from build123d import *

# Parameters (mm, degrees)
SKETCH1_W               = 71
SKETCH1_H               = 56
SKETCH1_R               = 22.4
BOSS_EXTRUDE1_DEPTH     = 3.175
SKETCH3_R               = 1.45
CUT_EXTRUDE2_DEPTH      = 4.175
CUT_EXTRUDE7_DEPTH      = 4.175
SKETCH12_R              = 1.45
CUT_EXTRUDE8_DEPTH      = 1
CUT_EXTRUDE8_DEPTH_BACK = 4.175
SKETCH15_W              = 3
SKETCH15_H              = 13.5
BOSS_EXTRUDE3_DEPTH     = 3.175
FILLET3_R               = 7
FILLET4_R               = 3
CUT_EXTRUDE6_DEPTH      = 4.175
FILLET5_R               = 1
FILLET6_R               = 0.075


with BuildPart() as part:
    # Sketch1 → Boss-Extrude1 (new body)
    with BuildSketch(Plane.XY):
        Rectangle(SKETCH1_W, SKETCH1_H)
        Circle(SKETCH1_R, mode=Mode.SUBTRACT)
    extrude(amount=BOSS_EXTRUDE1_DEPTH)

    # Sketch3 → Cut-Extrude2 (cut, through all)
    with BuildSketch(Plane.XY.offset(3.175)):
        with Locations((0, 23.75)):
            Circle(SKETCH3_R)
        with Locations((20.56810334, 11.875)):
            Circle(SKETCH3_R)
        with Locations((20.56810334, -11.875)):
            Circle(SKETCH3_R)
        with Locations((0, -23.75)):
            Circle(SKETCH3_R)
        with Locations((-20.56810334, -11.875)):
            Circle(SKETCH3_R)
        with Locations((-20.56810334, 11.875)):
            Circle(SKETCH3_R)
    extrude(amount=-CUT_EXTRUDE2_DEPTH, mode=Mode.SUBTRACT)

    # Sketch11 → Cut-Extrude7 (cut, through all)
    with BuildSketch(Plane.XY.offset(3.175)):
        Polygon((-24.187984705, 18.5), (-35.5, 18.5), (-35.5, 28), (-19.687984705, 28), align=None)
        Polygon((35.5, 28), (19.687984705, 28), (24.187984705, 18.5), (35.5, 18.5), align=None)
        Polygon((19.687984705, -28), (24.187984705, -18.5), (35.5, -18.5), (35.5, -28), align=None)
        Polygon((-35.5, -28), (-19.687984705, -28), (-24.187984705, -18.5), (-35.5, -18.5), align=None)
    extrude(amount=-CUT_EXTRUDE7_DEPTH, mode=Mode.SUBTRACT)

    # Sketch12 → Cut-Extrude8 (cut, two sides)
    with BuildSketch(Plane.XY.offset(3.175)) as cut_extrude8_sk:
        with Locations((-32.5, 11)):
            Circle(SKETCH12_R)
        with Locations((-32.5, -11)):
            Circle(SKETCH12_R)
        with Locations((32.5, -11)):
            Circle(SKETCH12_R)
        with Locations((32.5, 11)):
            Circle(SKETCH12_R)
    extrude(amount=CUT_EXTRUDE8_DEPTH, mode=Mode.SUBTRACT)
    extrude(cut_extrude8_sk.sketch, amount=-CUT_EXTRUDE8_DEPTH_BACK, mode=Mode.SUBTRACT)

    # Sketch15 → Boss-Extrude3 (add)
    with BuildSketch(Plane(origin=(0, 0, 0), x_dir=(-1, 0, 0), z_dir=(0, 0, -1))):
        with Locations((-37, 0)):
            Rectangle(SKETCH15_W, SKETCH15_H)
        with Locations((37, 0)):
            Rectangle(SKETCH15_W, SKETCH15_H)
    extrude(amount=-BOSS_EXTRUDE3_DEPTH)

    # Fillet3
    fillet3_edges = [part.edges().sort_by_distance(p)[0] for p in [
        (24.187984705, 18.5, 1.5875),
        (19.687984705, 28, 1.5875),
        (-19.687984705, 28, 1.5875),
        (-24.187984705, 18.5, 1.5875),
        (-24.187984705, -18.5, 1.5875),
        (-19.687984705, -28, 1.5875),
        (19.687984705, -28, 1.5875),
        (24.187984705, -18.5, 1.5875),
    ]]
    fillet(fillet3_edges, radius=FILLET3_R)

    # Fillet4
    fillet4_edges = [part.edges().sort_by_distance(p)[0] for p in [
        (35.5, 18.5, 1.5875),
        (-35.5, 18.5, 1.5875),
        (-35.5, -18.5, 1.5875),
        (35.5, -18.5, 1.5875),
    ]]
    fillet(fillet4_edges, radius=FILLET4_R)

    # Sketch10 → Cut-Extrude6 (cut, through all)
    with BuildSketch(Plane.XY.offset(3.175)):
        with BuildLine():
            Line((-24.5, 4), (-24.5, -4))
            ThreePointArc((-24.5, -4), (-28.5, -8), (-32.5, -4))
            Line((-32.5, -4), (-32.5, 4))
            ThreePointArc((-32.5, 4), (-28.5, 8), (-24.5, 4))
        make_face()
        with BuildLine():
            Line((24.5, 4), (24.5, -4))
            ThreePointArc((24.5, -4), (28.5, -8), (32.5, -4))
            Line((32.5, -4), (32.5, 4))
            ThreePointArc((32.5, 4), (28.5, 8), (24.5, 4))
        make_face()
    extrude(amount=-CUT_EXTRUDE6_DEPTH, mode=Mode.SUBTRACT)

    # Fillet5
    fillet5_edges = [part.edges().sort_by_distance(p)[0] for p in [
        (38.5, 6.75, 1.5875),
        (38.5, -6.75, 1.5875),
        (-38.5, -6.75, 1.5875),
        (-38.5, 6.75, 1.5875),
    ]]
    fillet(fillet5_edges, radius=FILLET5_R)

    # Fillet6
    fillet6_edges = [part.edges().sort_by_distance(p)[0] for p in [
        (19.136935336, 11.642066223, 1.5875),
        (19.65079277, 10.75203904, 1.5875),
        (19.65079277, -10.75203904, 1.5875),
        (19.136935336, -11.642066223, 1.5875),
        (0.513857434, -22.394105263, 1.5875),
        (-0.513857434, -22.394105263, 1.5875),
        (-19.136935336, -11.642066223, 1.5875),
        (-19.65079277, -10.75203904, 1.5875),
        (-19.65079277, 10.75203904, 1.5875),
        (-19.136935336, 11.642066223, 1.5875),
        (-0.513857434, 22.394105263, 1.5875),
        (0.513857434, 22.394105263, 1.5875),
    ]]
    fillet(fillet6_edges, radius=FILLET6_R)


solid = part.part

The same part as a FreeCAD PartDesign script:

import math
import FreeCAD as App
import Part
import Sketcher


def edges_at(feature, points):
    """Names of the edges that pass closest to the given points."""
    edges = feature.Shape.Edges
    near = lambda p: min(range(len(edges)), key=lambda i: edges[i].distToShape(Part.Vertex(*p))[0])
    return sorted({f"Edge{near(p) + 1}" for p in points})


def add_polygon(sketch, points):
    """Adds a closed chain of lines whose ends are joined by coincident constraints."""
    first, n = sketch.GeometryCount, len(points)
    for a, b in zip(points, points[1:] + points[:1]):
        sketch.addGeometry(Part.LineSegment(App.Vector(*a, 0), App.Vector(*b, 0)), False)
    for i in range(n):
        sketch.addConstraint(Sketcher.Constraint("Coincident", first + i, 2, first + (i + 1) % n, 1))

doc = App.newDocument("Part")
body = doc.addObject("PartDesign::Body", "Body")

# Sketch on XY plane
sketch1 = doc.addObject("Sketcher::SketchObject", "Sketch")
body.addObject(sketch1)
sketch1.AttachmentSupport = (doc.XY_Plane, [""])
sketch1.MapMode = "FlatFace"
add_polygon(sketch1, [(-36, 28), (-36, -28), (36, -28), (36, 28)])  # lines 0-3
sketch1.addGeometry(Part.Circle(App.Vector(0, 0, 0), App.Vector(0, 0, 1), 22), False)  # 4
sketch1.addConstraint(Sketcher.Constraint("Vertical", 0))
sketch1.addConstraint(Sketcher.Constraint("Horizontal", 1))
sketch1.addConstraint(Sketcher.Constraint("Vertical", 2))
sketch1.addConstraint(Sketcher.Constraint("Horizontal", 3))
sketch1.addConstraint(Sketcher.Constraint("Coincident", 4, 3, -1, 1))
sketch1.addConstraint(Sketcher.Constraint("Symmetric", 0, 2, 2, 2, -1, 1))
sketch1.addConstraint(Sketcher.Constraint("Diameter", 4, 44.8))
sketch1.addConstraint(Sketcher.Constraint("DistanceX", 1, 1, 1, 2, 71.0))
sketch1.addConstraint(Sketcher.Constraint("DistanceY", 0, 2, 0, 1, 56.0))
pad1 = doc.addObject("PartDesign::Pad", "Pad")
body.addObject(pad1)
pad1.Profile = sketch1
pad1.Length = 3.175

# Sketch on XY plane
sketch2 = doc.addObject("Sketcher::SketchObject", "Sketch001")
body.addObject(sketch2)
sketch2.AttachmentSupport = (doc.XY_Plane, [""])
sketch2.MapMode = "FlatFace"
sketch2.AttachmentOffset = App.Placement(App.Vector(0, 0, 3.175), App.Rotation())
sketch2.addGeometry(Part.Circle(App.Vector(0, 23.8, 0), App.Vector(0, 0, 1), 1.4), False)
sketch2.addGeometry(Part.Circle(App.Vector(20.6, 11.9, 0), App.Vector(0, 0, 1), 1.4), False)
sketch2.addGeometry(Part.Circle(App.Vector(20.6, -11.9, 0), App.Vector(0, 0, 1), 1.4), False)
sketch2.addGeometry(Part.Circle(App.Vector(0, -23.8, 0), App.Vector(0, 0, 1), 1.4), False)
sketch2.addGeometry(Part.Circle(App.Vector(-20.6, -11.9, 0), App.Vector(0, 0, 1), 1.4), False)
sketch2.addGeometry(Part.Circle(App.Vector(-20.6, 11.9, 0), App.Vector(0, 0, 1), 1.4), False)
sketch2.addConstraint(Sketcher.Constraint("Equal", 0, 1))
sketch2.addConstraint(Sketcher.Constraint("Equal", 1, 2))
sketch2.addConstraint(Sketcher.Constraint("Equal", 2, 3))
sketch2.addConstraint(Sketcher.Constraint("Equal", 3, 4))
sketch2.addConstraint(Sketcher.Constraint("Equal", 4, 5))
sketch2.addConstraint(Sketcher.Constraint("Symmetric", 0, 3, 3, 3, -1, 1))
sketch2.addConstraint(Sketcher.Constraint("Symmetric", 1, 3, 4, 3, -1, 1))
sketch2.addConstraint(Sketcher.Constraint("Symmetric", 2, 3, 5, 3, -1, 1))
sketch2.addConstraint(Sketcher.Constraint("Symmetric", 2, 3, 4, 3, -2))
sketch2.addConstraint(Sketcher.Constraint("PointOnObject", 0, 3, -2))
sketch2.addConstraint(Sketcher.Constraint("Diameter", 0, 2.9))
sketch2.addConstraint(Sketcher.Constraint("DistanceY", 3, 3, 0, 3, 47.5))
sketch2.addConstraint(Sketcher.Constraint("DistanceY", 2, 3, 1, 3, 23.75))
sketch2.addConstraint(Sketcher.Constraint("DistanceX", -1, 1, 1, 3, 20.568103))
pocket1 = doc.addObject("PartDesign::Pocket", "Pocket")
body.addObject(pocket1)
pocket1.Profile = sketch2
pocket1.Type = "ThroughAll"

# Sketch on XY plane
sketch3 = doc.addObject("Sketcher::SketchObject", "Sketch002")
body.addObject(sketch3)
sketch3.AttachmentSupport = (doc.XY_Plane, [""])
sketch3.MapMode = "FlatFace"
sketch3.AttachmentOffset = App.Placement(App.Vector(0, 0, 3.175), App.Rotation())
add_polygon(sketch3, [(-36, 18), (-24, 18), (-20, 28), (-36, 28)])  # lines 0-3
add_polygon(sketch3, [(36, 28), (20, 28), (24, 18), (36, 18)])  # lines 4-7
add_polygon(sketch3, [(24, -18), (20, -28), (36, -28), (36, -18)])  # lines 8-11
add_polygon(sketch3, [(-36, -28), (-20, -28), (-24, -18), (-36, -18)])  # lines 12-15
sketch3.addConstraint(Sketcher.Constraint("Horizontal", 0))
sketch3.addConstraint(Sketcher.Constraint("Horizontal", 2))
sketch3.addConstraint(Sketcher.Constraint("Vertical", 3))
sketch3.addConstraint(Sketcher.Constraint("Horizontal", 4))
sketch3.addConstraint(Sketcher.Constraint("Horizontal", 6))
sketch3.addConstraint(Sketcher.Constraint("Vertical", 7))
sketch3.addConstraint(Sketcher.Constraint("Horizontal", 9))
sketch3.addConstraint(Sketcher.Constraint("Vertical", 10))
sketch3.addConstraint(Sketcher.Constraint("Horizontal", 11))
sketch3.addConstraint(Sketcher.Constraint("Horizontal", 12))
sketch3.addConstraint(Sketcher.Constraint("Horizontal", 14))
sketch3.addConstraint(Sketcher.Constraint("Vertical", 15))
sketch3.addConstraint(Sketcher.Constraint("Symmetric", 1, 2, 8, 2, -1, 1))
sketch3.addConstraint(Sketcher.Constraint("Symmetric", 3, 2, 10, 2, -1, 1))
sketch3.addConstraint(Sketcher.Constraint("Symmetric", 4, 2, 12, 2, -1, 1))
sketch3.addConstraint(Sketcher.Constraint("Symmetric", 5, 2, 13, 2, -1, 1))
sketch3.addConstraint(Sketcher.Constraint("Symmetric", 1, 2, 4, 2, -2))
sketch3.addConstraint(Sketcher.Constraint("Symmetric", 0, 2, 5, 2, -2))
sketch3.addConstraint(Sketcher.Constraint("Parallel", 1, 8))
sketch3.addConstraint(Sketcher.Constraint("Vertical", 7, 2, 9, 2))
sketch3.addConstraint(Sketcher.Constraint("Vertical", 3, 2, 14, 2))
sketch3.addConstraint(Sketcher.Constraint("DistanceY", 3, 2, 3, 1, 9.5))
sketch3.addConstraint(Sketcher.Constraint("DistanceY", -1, 1, 1, 2, 28.0))
sketch3.addConstraint(Sketcher.Constraint("DistanceX", 3, 2, 6, 2, 71.0))
sketch3.addConstraint(Sketcher.Constraint("DistanceX", 0, 2, 1, 2, 4.5))
sketch3.addConstraint(Sketcher.Constraint("DistanceX", 0, 1, 0, 2, 11.312015))
pocket2 = doc.addObject("PartDesign::Pocket", "Pocket001")
body.addObject(pocket2)
pocket2.Profile = sketch3
pocket2.Type = "ThroughAll"

# Sketch on XY plane
sketch4 = doc.addObject("Sketcher::SketchObject", "Sketch003")
body.addObject(sketch4)
sketch4.AttachmentSupport = (doc.XY_Plane, [""])
sketch4.MapMode = "FlatFace"
sketch4.AttachmentOffset = App.Placement(App.Vector(0, 0, 3.175), App.Rotation())
sketch4.addGeometry(Part.Circle(App.Vector(-32.5, 11, 0), App.Vector(0, 0, 1), 1.4), False)
sketch4.addGeometry(Part.Circle(App.Vector(-32.5, -11, 0), App.Vector(0, 0, 1), 1.4), False)
sketch4.addGeometry(Part.Circle(App.Vector(32.5, -11, 0), App.Vector(0, 0, 1), 1.4), False)
sketch4.addGeometry(Part.Circle(App.Vector(32.5, 11, 0), App.Vector(0, 0, 1), 1.4), False)
sketch4.addConstraint(Sketcher.Constraint("Equal", 0, 1))
sketch4.addConstraint(Sketcher.Constraint("Equal", 1, 2))
sketch4.addConstraint(Sketcher.Constraint("Equal", 2, 3))
sketch4.addConstraint(Sketcher.Constraint("Symmetric", 0, 3, 2, 3, -1, 1))
sketch4.addConstraint(Sketcher.Constraint("Symmetric", 1, 3, 3, 3, -1, 1))
sketch4.addConstraint(Sketcher.Constraint("Symmetric", 1, 3, 2, 3, -2))
sketch4.addConstraint(Sketcher.Constraint("Diameter", 0, 2.9))
sketch4.addConstraint(Sketcher.Constraint("DistanceY", -1, 1, 0, 3, 11.0))
sketch4.addConstraint(Sketcher.Constraint("DistanceX", 1, 3, 2, 3, 65.0))
pocket3 = doc.addObject("PartDesign::Pocket", "Pocket002")
body.addObject(pocket3)
pocket3.Profile = sketch4
pocket3.Type = "ThroughAll"
pocket3.Midplane = True

# Sketch on XY plane
sketch5 = doc.addObject("Sketcher::SketchObject", "Sketch004")
body.addObject(sketch5)
sketch5.AttachmentSupport = (doc.XY_Plane, [""])
sketch5.MapMode = "FlatFace"
add_polygon(sketch5, [(38.5, 6.8), (38.5, -6.8), (35.5, -6.8), (35.5, 6.8)])  # lines 0-3
add_polygon(sketch5, [(-35.5, 6.8), (-35.5, -6.8), (-38.5, -6.8), (-38.5, 6.8)])  # lines 4-7
sketch5.addConstraint(Sketcher.Constraint("Vertical", 0))
sketch5.addConstraint(Sketcher.Constraint("Horizontal", 1))
sketch5.addConstraint(Sketcher.Constraint("Vertical", 2))
sketch5.addConstraint(Sketcher.Constraint("Horizontal", 3))
sketch5.addConstraint(Sketcher.Constraint("Vertical", 4))
sketch5.addConstraint(Sketcher.Constraint("Horizontal", 5))
sketch5.addConstraint(Sketcher.Constraint("Vertical", 6))
sketch5.addConstraint(Sketcher.Constraint("Horizontal", 7))
sketch5.addConstraint(Sketcher.Constraint("Symmetric", 2, 2, 4, 2, -1, 1))
sketch5.addConstraint(Sketcher.Constraint("Symmetric", 0, 2, 6, 2, -1, 1))
sketch5.addConstraint(Sketcher.Constraint("Horizontal", 1, 2, 4, 2))
sketch5.addConstraint(Sketcher.Constraint("DistanceX", 1, 2, 1, 1, 3.0))
sketch5.addConstraint(Sketcher.Constraint("DistanceY", 0, 2, 0, 1, 13.5))
sketch5.addConstraint(Sketcher.Constraint("DistanceX", 4, 2, 1, 2, 71.0))
pad2 = doc.addObject("PartDesign::Pad", "Pad001")
body.addObject(pad2)
pad2.Profile = sketch5
pad2.Length = 3.175
doc.recompute()

fillet = doc.addObject("PartDesign::Fillet", "Fillet")
body.addObject(fillet)
fillet.Base = (pad2, edges_at(pad2, [
    (24.188, 18.5, 1.587),
    (19.688, 28, 1.587),
    (-19.688, 28, 1.587),
    (-24.188, 18.5, 1.587),
    (-24.188, -18.5, 1.587),
    (-19.688, -28, 1.587),
    (19.688, -28, 1.587),
    (24.188, -18.5, 1.587),
]))
fillet.Radius = 7
doc.recompute()

fillet2 = doc.addObject("PartDesign::Fillet", "Fillet001")
body.addObject(fillet2)
fillet2.Base = (fillet, edges_at(fillet, [
    (35.5, 18.5, 1.587),
    (-35.5, 18.5, 1.587),
    (-35.5, -18.5, 1.587),
    (35.5, -18.5, 1.587),
]))
fillet2.Radius = 3

# Sketch on XY plane
sketch6 = doc.addObject("Sketcher::SketchObject", "Sketch005")
body.addObject(sketch6)
sketch6.AttachmentSupport = (doc.XY_Plane, [""])
sketch6.MapMode = "FlatFace"
sketch6.AttachmentOffset = App.Placement(App.Vector(0, 0, 3.175), App.Rotation())
sketch6.addGeometry(Part.LineSegment(App.Vector(-24.5, -4, 0), App.Vector(-24.5, 4, 0)), False)
sketch6.addGeometry(Part.ArcOfCircle(Part.Circle(App.Vector(-28.5, 4, 0), App.Vector(0, 0, 1), 4), math.radians(0), math.radians(180)), False)
sketch6.addGeometry(Part.LineSegment(App.Vector(-32.5, 4, 0), App.Vector(-32.5, -4, 0)), False)
sketch6.addGeometry(Part.ArcOfCircle(Part.Circle(App.Vector(-28.5, -4, 0), App.Vector(0, 0, 1), 4), math.radians(180), math.radians(360)), False)
sketch6.addGeometry(Part.LineSegment(App.Vector(24.5, 4, 0), App.Vector(24.5, -4, 0)), False)
sketch6.addGeometry(Part.ArcOfCircle(Part.Circle(App.Vector(28.5, -4, 0), App.Vector(0, 0, 1), 4), math.radians(180), math.radians(360)), False)
sketch6.addGeometry(Part.LineSegment(App.Vector(32.5, -4, 0), App.Vector(32.5, 4, 0)), False)
sketch6.addGeometry(Part.ArcOfCircle(Part.Circle(App.Vector(28.5, 4, 0), App.Vector(0, 0, 1), 4), math.radians(0), math.radians(180)), False)
sketch6.addConstraint(Sketcher.Constraint("Tangent", 0, 2, 1, 1))
sketch6.addConstraint(Sketcher.Constraint("Tangent", 1, 2, 2, 1))
sketch6.addConstraint(Sketcher.Constraint("Tangent", 2, 2, 3, 1))
sketch6.addConstraint(Sketcher.Constraint("Tangent", 3, 2, 0, 1))
sketch6.addConstraint(Sketcher.Constraint("Tangent", 4, 2, 5, 1))
sketch6.addConstraint(Sketcher.Constraint("Tangent", 5, 2, 6, 1))
sketch6.addConstraint(Sketcher.Constraint("Tangent", 6, 2, 7, 1))
sketch6.addConstraint(Sketcher.Constraint("Tangent", 7, 2, 4, 1))
sketch6.addConstraint(Sketcher.Constraint("Vertical", 0))
sketch6.addConstraint(Sketcher.Constraint("Vertical", 2))
sketch6.addConstraint(Sketcher.Constraint("Vertical", 4))
sketch6.addConstraint(Sketcher.Constraint("Vertical", 6))
sketch6.addConstraint(Sketcher.Constraint("Equal", 3, 5))
sketch6.addConstraint(Sketcher.Constraint("Symmetric", 1, 3, 5, 3, -1, 1))
sketch6.addConstraint(Sketcher.Constraint("Horizontal", 3, 3, 5, 3))
sketch6.addConstraint(Sketcher.Constraint("Horizontal", 1, 3, 7, 3))
sketch6.addConstraint(Sketcher.Constraint("Radius", 1, 4.0))
sketch6.addConstraint(Sketcher.Constraint("DistanceY", 0, 1, 0, 2, 8.0))
sketch6.addConstraint(Sketcher.Constraint("DistanceX", 3, 3, 5, 3, 57.0))
pocket4 = doc.addObject("PartDesign::Pocket", "Pocket003")
body.addObject(pocket4)
pocket4.Profile = sketch6
pocket4.Type = "ThroughAll"
doc.recompute()

fillet3 = doc.addObject("PartDesign::Fillet", "Fillet002")
body.addObject(fillet3)
fillet3.Base = (pocket4, edges_at(pocket4, [
    (38.5, 6.75, 1.587),
    (38.5, -6.75, 1.587),
    (-38.5, -6.75, 1.587),
    (-38.5, 6.75, 1.587),
]))
fillet3.Radius = 1
doc.recompute()

fillet4 = doc.addObject("PartDesign::Fillet", "Fillet003")
body.addObject(fillet4)
fillet4.Base = (fillet3, edges_at(fillet3, [
    (19.137, 11.642, 1.587),
    (19.651, 10.752, 1.587),
    (19.651, -10.752, 1.587),
    (19.137, -11.642, 1.587),
    (0.514, -22.394, 1.587),
    (-0.514, -22.394, 1.587),
    (-19.137, -11.642, 1.587),
    (-19.651, -10.752, 1.587),
    (-19.651, 10.752, 1.587),
    (-19.137, 11.642, 1.587),
    (-0.514, 22.394, 1.587),
    (0.514, 22.394, 1.587),
]))
fillet4.Radius = 0.075

doc.recompute()
